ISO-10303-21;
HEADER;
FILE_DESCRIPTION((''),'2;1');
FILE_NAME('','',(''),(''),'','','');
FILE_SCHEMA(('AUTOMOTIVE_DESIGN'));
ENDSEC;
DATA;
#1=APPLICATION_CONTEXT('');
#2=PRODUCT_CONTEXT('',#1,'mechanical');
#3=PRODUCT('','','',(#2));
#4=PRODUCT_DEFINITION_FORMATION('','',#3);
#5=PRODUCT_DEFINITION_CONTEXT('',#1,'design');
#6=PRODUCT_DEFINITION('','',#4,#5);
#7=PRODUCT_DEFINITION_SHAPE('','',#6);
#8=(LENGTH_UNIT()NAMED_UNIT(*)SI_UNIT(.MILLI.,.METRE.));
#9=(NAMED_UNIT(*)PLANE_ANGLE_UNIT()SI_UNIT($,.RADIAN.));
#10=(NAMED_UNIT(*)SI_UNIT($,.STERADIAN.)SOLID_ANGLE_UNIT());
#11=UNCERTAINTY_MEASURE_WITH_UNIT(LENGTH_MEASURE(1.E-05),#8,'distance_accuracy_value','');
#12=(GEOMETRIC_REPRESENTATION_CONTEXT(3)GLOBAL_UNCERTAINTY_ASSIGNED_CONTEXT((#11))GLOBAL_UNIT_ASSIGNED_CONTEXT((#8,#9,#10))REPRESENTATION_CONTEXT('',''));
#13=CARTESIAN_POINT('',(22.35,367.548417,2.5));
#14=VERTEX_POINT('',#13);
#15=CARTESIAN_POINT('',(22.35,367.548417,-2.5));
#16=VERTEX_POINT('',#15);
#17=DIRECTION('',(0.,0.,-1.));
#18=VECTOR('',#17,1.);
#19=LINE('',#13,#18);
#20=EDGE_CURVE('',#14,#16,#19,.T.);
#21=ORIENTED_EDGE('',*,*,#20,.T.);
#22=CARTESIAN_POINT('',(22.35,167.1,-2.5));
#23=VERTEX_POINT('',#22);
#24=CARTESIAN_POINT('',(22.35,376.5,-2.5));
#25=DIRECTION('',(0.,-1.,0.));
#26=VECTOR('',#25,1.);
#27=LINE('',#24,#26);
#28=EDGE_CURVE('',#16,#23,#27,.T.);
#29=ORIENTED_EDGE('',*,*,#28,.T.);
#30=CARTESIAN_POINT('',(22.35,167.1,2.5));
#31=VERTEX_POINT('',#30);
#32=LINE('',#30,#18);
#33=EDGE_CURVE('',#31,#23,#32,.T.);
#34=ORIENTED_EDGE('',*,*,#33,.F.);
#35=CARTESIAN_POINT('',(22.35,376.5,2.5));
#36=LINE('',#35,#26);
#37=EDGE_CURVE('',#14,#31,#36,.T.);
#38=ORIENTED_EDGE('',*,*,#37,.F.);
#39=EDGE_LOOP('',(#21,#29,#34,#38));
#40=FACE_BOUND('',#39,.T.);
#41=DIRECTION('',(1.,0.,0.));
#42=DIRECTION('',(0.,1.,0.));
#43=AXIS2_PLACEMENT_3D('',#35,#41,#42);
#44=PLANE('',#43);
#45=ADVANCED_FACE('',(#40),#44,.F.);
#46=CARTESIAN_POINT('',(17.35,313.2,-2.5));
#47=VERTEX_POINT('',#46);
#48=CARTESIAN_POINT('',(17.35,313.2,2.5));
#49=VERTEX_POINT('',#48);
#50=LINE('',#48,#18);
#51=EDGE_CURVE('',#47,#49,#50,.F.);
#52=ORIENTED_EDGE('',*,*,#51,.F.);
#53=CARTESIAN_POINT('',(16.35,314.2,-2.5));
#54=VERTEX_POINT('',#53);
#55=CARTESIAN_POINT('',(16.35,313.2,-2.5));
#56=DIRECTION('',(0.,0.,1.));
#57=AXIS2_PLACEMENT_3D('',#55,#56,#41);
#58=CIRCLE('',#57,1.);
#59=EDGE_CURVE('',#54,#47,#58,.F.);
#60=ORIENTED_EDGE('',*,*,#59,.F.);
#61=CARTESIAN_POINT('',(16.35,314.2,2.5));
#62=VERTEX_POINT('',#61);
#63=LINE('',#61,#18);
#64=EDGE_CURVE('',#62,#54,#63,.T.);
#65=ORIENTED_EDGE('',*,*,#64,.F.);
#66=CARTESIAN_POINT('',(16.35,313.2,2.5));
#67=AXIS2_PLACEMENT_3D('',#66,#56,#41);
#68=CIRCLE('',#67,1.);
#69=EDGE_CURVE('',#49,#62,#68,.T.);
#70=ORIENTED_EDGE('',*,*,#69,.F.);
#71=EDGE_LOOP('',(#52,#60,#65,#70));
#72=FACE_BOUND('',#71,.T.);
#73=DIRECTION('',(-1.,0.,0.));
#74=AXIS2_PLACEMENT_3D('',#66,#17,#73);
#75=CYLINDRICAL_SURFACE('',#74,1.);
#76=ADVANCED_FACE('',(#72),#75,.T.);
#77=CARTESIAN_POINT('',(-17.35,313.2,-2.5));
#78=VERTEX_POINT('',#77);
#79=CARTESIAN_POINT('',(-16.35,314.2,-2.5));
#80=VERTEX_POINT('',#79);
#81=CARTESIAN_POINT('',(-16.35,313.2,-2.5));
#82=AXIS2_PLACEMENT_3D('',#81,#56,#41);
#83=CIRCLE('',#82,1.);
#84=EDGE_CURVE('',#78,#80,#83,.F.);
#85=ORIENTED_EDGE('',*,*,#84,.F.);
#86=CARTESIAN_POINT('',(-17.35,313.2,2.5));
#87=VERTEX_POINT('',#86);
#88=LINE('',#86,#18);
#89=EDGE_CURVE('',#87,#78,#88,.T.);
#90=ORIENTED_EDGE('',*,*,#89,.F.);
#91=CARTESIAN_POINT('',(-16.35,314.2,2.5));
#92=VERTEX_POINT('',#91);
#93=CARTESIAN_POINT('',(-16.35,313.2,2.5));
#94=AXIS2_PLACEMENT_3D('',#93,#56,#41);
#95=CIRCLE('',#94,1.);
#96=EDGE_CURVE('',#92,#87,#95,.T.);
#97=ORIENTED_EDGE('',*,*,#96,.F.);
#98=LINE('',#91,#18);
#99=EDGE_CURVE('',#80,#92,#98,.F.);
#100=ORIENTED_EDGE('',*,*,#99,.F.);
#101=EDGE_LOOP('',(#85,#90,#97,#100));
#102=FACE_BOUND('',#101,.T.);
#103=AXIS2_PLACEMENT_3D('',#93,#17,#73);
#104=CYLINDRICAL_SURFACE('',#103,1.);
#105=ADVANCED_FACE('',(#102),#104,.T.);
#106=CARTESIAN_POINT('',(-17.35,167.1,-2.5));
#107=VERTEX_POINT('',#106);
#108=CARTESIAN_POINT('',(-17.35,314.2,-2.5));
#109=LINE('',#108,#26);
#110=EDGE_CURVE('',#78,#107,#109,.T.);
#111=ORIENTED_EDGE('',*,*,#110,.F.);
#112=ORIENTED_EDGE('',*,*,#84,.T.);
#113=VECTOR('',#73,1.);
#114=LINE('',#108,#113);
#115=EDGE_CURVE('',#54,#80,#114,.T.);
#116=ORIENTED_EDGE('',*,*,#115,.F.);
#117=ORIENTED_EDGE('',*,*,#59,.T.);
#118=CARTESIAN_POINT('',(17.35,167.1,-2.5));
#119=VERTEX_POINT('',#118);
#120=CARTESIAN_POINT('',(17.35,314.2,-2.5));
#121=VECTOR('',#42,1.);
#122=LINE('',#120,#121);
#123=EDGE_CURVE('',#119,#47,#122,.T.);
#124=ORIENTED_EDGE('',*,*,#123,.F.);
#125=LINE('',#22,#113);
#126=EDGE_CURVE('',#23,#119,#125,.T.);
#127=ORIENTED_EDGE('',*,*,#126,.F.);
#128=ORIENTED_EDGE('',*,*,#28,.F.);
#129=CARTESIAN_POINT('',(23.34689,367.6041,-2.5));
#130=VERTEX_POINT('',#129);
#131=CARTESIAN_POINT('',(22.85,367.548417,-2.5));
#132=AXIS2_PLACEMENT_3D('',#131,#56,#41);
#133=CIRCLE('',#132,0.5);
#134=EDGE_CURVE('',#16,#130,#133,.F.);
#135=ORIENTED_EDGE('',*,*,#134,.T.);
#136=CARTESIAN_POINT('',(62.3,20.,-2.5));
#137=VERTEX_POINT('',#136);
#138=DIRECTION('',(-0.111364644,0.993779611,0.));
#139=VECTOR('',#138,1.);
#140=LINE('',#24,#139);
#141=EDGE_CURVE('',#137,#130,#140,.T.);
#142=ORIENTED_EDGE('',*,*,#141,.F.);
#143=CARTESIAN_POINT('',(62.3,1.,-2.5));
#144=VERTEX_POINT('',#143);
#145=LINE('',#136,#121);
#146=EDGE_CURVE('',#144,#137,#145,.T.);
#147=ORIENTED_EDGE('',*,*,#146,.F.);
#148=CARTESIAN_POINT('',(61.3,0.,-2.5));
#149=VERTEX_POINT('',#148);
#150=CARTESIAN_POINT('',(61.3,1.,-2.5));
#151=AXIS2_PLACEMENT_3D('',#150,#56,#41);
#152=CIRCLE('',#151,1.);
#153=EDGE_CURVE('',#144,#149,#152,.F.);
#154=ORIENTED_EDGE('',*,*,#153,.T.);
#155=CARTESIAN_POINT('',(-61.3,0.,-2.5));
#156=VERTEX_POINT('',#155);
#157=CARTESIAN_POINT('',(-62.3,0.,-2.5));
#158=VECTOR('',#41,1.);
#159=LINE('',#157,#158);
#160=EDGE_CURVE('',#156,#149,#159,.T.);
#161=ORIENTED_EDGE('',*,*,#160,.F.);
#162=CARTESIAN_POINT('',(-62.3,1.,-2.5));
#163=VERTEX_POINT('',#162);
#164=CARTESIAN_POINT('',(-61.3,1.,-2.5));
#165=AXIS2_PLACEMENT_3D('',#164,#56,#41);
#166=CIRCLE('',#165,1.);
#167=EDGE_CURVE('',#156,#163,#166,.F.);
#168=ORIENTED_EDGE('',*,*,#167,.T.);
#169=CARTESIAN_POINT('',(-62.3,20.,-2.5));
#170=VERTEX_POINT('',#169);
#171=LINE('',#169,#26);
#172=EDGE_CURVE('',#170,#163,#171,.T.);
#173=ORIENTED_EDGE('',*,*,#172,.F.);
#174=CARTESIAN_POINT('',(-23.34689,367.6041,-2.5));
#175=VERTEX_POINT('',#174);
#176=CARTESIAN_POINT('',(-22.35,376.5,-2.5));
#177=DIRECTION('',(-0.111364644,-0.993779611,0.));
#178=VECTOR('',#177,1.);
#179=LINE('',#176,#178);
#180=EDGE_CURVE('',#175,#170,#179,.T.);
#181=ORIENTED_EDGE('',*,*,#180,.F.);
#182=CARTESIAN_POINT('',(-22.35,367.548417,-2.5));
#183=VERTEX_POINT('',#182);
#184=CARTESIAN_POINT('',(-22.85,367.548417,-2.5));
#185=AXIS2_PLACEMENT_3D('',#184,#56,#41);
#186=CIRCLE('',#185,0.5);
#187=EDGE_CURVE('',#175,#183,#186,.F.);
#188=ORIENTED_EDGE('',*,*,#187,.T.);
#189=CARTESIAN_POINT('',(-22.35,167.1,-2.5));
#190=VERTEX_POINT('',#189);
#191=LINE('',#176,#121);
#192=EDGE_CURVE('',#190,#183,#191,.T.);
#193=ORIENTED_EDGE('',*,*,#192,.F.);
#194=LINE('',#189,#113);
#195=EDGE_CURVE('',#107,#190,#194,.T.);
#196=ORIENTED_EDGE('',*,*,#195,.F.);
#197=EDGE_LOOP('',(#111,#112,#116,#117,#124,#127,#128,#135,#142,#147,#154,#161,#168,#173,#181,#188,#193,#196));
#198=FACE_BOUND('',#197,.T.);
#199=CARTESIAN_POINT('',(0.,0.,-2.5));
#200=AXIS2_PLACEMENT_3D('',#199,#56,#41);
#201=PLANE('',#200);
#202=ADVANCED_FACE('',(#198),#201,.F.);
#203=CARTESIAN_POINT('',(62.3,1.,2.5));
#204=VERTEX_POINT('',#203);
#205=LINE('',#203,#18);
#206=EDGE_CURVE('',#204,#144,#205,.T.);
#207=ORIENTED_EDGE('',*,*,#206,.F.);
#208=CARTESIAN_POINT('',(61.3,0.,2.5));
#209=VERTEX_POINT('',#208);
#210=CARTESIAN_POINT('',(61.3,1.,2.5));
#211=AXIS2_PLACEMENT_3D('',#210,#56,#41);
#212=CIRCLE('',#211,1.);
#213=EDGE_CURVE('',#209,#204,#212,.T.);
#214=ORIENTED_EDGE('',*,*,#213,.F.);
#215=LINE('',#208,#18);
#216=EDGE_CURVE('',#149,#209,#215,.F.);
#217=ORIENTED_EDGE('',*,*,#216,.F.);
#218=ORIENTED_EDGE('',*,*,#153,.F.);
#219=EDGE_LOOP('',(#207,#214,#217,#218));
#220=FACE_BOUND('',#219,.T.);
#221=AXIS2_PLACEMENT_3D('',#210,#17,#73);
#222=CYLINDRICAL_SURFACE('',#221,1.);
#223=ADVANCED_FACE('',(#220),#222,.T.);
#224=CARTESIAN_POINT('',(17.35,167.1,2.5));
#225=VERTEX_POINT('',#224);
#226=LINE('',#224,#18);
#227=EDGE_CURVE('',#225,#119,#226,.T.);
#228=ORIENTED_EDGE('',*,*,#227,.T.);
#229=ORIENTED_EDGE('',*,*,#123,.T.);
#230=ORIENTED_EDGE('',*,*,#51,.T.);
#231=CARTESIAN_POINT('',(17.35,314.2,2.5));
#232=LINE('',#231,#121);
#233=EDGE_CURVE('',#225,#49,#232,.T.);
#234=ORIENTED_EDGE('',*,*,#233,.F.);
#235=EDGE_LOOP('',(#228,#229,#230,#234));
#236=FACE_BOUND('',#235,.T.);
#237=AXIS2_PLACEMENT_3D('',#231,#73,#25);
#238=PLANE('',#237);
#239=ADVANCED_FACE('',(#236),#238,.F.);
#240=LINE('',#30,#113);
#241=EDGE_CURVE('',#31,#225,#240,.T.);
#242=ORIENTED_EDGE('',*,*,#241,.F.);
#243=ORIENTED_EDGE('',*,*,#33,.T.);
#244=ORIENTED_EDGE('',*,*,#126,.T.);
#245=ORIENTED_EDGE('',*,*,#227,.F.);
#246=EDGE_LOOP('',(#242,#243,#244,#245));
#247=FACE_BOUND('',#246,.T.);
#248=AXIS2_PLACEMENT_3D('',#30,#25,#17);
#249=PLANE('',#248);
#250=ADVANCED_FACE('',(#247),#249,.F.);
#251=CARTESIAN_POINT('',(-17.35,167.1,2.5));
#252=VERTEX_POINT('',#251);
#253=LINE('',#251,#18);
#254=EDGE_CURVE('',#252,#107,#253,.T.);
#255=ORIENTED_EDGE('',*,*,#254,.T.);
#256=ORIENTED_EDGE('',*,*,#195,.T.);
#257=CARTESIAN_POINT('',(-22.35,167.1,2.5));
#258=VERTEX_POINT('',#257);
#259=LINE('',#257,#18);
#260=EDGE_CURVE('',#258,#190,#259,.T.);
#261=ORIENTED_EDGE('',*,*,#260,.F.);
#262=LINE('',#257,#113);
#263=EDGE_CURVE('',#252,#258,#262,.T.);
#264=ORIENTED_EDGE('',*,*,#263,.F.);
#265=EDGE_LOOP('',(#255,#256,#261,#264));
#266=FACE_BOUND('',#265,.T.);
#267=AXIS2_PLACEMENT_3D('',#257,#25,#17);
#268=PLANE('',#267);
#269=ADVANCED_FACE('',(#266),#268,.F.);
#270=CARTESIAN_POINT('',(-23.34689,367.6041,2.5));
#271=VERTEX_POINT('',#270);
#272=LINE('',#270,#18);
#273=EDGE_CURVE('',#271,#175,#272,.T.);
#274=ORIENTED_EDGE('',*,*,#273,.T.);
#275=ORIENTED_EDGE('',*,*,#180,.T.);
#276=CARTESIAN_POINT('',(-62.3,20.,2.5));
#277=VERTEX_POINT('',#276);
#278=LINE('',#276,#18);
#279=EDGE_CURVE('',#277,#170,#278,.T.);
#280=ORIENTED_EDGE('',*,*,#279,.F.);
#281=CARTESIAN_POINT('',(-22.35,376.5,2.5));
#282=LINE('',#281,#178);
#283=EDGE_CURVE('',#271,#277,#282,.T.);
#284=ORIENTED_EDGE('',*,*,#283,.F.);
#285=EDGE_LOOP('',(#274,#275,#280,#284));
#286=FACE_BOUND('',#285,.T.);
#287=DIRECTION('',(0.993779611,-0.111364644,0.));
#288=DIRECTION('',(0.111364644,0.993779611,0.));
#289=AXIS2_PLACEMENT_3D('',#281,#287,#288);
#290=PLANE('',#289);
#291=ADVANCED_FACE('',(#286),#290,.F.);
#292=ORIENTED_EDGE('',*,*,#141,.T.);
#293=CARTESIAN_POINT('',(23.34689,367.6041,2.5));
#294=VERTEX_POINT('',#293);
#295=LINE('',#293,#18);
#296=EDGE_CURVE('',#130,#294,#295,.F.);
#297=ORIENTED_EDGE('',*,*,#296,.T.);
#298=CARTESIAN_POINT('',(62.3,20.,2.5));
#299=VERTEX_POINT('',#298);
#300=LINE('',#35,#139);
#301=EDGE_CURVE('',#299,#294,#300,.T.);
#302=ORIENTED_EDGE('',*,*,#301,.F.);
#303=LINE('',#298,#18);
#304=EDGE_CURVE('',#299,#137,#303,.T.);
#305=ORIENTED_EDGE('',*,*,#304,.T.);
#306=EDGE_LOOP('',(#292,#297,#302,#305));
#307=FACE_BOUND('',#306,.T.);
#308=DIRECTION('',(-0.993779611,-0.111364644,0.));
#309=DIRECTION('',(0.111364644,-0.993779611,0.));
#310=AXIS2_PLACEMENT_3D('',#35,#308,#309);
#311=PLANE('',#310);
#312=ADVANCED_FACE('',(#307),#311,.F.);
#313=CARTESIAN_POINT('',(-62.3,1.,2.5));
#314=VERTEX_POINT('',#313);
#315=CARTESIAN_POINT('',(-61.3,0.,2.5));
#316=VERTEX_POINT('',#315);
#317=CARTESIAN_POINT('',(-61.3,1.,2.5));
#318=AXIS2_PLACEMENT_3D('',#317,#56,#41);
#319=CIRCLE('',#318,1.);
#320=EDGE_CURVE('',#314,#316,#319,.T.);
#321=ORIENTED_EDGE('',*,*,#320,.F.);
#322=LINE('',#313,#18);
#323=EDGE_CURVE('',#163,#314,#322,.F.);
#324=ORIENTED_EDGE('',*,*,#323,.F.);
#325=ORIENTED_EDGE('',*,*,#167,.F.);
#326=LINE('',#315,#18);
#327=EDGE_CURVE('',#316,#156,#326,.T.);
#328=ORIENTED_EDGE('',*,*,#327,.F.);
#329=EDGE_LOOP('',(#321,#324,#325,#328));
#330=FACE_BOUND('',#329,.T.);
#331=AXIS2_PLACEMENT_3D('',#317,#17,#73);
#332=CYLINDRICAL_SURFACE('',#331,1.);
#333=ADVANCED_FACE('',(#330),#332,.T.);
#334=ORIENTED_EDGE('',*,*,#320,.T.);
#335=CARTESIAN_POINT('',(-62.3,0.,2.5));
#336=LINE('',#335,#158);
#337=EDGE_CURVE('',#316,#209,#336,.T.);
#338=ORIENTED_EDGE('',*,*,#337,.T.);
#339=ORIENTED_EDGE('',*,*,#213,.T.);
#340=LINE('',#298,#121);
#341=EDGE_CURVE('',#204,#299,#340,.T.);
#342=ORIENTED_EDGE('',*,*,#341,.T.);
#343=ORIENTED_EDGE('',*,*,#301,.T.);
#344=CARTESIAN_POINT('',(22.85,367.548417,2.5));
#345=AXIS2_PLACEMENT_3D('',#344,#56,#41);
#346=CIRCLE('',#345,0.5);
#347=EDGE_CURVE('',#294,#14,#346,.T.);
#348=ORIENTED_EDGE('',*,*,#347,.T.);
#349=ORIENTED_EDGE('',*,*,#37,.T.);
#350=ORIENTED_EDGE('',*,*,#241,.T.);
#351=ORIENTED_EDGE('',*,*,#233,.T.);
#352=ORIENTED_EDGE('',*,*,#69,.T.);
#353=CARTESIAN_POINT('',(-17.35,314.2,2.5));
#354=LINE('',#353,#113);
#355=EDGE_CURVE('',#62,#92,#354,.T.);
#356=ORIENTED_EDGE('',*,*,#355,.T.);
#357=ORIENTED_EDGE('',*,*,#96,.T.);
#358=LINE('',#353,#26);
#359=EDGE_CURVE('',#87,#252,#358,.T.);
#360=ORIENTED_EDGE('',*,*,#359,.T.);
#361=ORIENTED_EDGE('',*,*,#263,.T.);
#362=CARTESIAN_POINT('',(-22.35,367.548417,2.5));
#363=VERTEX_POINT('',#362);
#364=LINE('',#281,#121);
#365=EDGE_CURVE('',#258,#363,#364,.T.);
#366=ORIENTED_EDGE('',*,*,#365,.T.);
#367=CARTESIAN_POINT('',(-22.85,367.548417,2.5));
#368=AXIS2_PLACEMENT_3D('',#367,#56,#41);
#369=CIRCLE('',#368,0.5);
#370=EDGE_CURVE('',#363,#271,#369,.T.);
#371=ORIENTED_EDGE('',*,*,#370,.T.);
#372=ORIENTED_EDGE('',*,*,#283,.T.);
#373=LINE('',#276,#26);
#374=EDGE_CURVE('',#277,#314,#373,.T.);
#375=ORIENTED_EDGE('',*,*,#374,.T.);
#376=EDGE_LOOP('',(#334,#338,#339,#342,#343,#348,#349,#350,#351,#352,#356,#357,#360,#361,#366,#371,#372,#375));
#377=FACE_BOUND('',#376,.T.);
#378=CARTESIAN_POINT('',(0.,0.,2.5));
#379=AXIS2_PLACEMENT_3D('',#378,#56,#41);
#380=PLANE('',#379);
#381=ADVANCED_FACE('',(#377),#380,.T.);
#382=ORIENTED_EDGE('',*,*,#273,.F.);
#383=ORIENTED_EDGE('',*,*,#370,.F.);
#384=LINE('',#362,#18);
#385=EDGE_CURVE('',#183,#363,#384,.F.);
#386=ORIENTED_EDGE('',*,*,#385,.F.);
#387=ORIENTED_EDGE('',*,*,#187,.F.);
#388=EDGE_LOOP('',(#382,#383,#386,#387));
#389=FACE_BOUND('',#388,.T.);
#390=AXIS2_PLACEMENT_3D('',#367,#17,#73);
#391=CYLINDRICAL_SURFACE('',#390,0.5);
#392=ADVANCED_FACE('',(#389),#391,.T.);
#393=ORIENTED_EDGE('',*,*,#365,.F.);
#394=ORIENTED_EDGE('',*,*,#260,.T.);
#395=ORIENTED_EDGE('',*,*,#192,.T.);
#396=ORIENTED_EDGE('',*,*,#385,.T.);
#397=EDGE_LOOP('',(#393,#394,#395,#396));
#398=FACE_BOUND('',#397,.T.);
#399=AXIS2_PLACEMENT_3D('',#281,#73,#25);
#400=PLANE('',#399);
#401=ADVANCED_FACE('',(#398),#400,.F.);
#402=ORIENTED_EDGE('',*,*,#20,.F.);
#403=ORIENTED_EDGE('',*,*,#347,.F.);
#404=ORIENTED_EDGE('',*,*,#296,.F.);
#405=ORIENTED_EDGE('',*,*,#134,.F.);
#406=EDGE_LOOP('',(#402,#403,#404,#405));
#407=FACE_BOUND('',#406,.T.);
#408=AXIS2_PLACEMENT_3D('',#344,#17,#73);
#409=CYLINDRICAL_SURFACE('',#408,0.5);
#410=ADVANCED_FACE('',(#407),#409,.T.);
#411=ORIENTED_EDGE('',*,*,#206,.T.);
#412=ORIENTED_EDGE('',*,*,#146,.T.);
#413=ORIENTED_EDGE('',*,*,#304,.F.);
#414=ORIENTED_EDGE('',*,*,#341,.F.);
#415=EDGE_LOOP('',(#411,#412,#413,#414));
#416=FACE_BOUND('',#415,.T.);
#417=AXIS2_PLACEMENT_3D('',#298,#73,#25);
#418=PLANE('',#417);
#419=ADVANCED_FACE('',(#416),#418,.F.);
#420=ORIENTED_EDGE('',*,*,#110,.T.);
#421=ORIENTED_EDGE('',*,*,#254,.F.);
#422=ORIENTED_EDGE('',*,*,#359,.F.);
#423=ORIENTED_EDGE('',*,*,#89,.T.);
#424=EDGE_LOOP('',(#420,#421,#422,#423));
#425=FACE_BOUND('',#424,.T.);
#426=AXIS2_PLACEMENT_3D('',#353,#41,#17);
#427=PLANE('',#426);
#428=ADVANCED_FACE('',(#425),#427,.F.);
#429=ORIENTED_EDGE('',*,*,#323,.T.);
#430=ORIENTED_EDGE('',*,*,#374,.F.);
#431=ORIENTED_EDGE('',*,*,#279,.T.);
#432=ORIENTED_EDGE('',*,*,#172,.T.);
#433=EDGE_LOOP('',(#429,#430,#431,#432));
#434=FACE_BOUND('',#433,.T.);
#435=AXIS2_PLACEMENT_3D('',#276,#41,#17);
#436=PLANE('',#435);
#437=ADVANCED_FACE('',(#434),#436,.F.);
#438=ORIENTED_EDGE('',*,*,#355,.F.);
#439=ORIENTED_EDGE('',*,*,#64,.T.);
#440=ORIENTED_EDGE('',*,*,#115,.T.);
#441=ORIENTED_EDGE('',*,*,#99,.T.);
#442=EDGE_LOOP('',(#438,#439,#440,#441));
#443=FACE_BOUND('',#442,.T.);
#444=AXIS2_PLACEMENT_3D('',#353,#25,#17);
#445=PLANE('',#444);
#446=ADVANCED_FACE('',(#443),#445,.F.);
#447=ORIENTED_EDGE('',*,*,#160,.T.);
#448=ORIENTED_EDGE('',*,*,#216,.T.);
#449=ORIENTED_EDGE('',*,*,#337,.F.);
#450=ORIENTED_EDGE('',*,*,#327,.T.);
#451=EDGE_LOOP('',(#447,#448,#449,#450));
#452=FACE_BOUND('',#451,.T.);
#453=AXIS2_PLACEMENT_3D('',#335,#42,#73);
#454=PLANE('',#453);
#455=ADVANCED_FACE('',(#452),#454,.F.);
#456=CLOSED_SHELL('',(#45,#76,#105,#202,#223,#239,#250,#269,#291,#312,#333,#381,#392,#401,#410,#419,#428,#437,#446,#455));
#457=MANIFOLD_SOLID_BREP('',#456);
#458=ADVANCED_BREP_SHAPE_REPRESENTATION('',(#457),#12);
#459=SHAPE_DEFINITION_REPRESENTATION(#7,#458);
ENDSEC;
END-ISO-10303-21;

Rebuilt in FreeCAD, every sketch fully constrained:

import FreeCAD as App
import Part
import Sketcher

V = App.Vector


def edges_at(feature, points):
    """Names of the edges that pass closest to the given points."""
    edges = feature.Shape.Edges
    near = lambda p: min(range(len(edges)), key=lambda i: edges[i].distToShape(Part.Vertex(*p))[0])
    return sorted({f"Edge{near(p) + 1}" for p in points})


def add_polygon(sketch, points):
    """Adds a closed chain of lines whose ends are joined by coincident constraints."""
    first, n = sketch.GeometryCount, len(points)
    for a, b in zip(points, points[1:] + points[:1]):
        sketch.addGeometry(Part.LineSegment(App.Vector(*a, 0), App.Vector(*b, 0)), False)
    for i in range(n):
        sketch.addConstraint(Sketcher.Constraint("Coincident", first + i, 2, first + (i + 1) % n, 1))

doc = App.newDocument("Part")
body = doc.addObject("PartDesign::Body", "Body")

sketch1 = doc.addObject("Sketcher::SketchObject", "Sketch")
body.addObject(sketch1)
sketch1.AttachmentSupport = (doc.XY_Plane, [""])
sketch1.MapMode = "FlatFace"
add_polygon(sketch1, [(-22, 376), (-62, 20), (-62, 0), (62, 0), (62, 20), (22, 376), (22, 167), (17, 167), (17, 314), (-17, 314), (-17, 167), (-22, 167)])
sketch1.addConstraint(Sketcher.Constraint("Vertical", 1))
sketch1.addConstraint(Sketcher.Constraint("Horizontal", 2))
sketch1.addConstraint(Sketcher.Constraint("Vertical", 3))
sketch1.addConstraint(Sketcher.Constraint("Vertical", 5))
sketch1.addConstraint(Sketcher.Constraint("Horizontal", 6))
sketch1.addConstraint(Sketcher.Constraint("Vertical", 7))
sketch1.addConstraint(Sketcher.Constraint("Horizontal", 8))
sketch1.addConstraint(Sketcher.Constraint("Vertical", 9))
sketch1.addConstraint(Sketcher.Constraint("Horizontal", 10))
sketch1.addConstraint(Sketcher.Constraint("Vertical", 11))
sketch1.addConstraint(Sketcher.Constraint("Symmetric", 1, 2, 2, 2, -1, 1))
sketch1.addConstraint(Sketcher.Constraint("Symmetric", 6, 2, 9, 2, -2))
sketch1.addConstraint(Sketcher.Constraint("Symmetric", 4, 2, 11, 2, -2))
sketch1.addConstraint(Sketcher.Constraint("Horizontal", 0, 2, 3, 2))
sketch1.addConstraint(Sketcher.Constraint("DistanceX", 6, 2, 6, 1, 5.0))
sketch1.addConstraint(Sketcher.Constraint("DistanceY", 1, 2, 1, 1, 20.0))
sketch1.addConstraint(Sketcher.Constraint("DistanceX", 2, 1, 2, 2, 124.6))
sketch1.addConstraint(Sketcher.Constraint("DistanceX", 8, 2, 8, 1, 34.7))
sketch1.addConstraint(Sketcher.Constraint("DistanceY", 5, 2, 5, 1, 209.4))
sketch1.addConstraint(Sketcher.Constraint("DistanceY", 7, 1, 7, 2, 147.1))
sketch1.addConstraint(Sketcher.Constraint("DistanceY", -1, 1, 4, 2, 376.5))
pad1 = doc.addObject("PartDesign::Pad", "Pad")
body.addObject(pad1)
pad1.Profile = sketch1
pad1.Length = 5
pad1.Midplane = True
doc.recompute()

fillet = doc.addObject("PartDesign::Fillet", "Fillet")
body.addObject(fillet)
fillet.Base = (pad1, edges_at(pad1, [
    (-17.35, 314.2, 0),
    (17.35, 314.2, 0),
    (62.3, 0, 0),
    (-62.3, 0, 0),
]))
fillet.Radius = 1
doc.recompute()

fillet2 = doc.addObject("PartDesign::Fillet", "Fillet001")
body.addObject(fillet2)
fillet2.Base = (fillet, edges_at(fillet, [(22.35, 376.5, 0), (-22.35, 376.5, 0)]))
fillet2.Radius = 0.5

doc.recompute()
